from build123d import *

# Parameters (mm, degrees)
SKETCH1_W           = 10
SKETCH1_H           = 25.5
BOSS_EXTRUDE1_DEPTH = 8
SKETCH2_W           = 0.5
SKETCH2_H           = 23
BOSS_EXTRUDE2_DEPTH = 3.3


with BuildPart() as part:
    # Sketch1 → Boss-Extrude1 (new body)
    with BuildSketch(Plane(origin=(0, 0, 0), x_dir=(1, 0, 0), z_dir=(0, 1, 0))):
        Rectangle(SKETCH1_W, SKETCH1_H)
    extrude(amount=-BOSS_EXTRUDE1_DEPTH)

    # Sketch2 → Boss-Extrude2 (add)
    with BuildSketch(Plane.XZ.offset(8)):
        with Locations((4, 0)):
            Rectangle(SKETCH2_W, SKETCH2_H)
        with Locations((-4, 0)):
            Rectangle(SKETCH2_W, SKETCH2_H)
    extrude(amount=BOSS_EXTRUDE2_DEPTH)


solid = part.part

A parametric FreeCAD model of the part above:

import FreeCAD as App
import Part
import Sketcher

V = App.Vector


def add_polygon(sketch, points):
    """Adds a closed chain of lines whose ends are joined by coincident constraints."""
    first, n = sketch.GeometryCount, len(points)
    for a, b in zip(points, points[1:] + points[:1]):
        sketch.addGeometry(Part.LineSegment(App.Vector(*a, 0), App.Vector(*b, 0)), False)
    for i in range(n):
        sketch.addConstraint(Sketcher.Constraint("Coincident", first + i, 2, first + (i + 1) % n, 1))

doc = App.newDocument("Part")
body = doc.addObject("PartDesign::Body", "Body")

# Sketch on XZ plane
sketch1 = body.newObject("Sketcher::SketchObject", "Sketch")
sketch1.AttachmentSupport = (doc.getObject("XZ_Plane"), [""])
sketch1.MapMode = "FlatFace"
add_polygon(sketch1, [(-5, -13), (-5, 13), (5, 13), (5, -13)])  # lines 0-3
sketch1.addConstraint([
    Sketcher.Constraint("Vertical", 0),
    Sketcher.Constraint("Horizontal", 1),
    Sketcher.Constraint("Vertical", 2),
    Sketcher.Constraint("Horizontal", 3),
    Sketcher.Constraint("Symmetric", 0, 2, 2, 2, -1, 1),
    Sketcher.Constraint("DistanceX", 1, 1, 1, 2, 10.0),
    Sketcher.Constraint("DistanceY", 0, 1, 0, 2, 25.5),
])
pad1 = body.newObject("PartDesign::Pad", "Pad")
pad1.Profile = sketch1
pad1.Length = 8

# Sketch on XZ plane
sketch2 = body.newObject("Sketcher::SketchObject", "Sketch001")
sketch2.AttachmentSupport = (doc.getObject("XZ_Plane"), [""])
sketch2.MapMode = "FlatFace"
sketch2.AttachmentOffset = App.Placement(V(0, 0, 8), App.Rotation())
add_polygon(sketch2, [(3.8, 11.5), (3.8, -11.5), (4.2, -11.5), (4.2, 11.5)])  # lines 0-3
add_polygon(sketch2, [(-4.2, 11.5), (-4.2, -11.5), (-3.8, -11.5), (-3.8, 11.5)])  # lines 4-7
sketch2.addConstraint([
    Sketcher.Constraint("Vertical", 0),
    Sketcher.Constraint("Horizontal", 1),
    Sketcher.Constraint("Vertical", 2),
    Sketcher.Constraint("Horizontal", 3),
    Sketcher.Constraint("Vertical", 4),
    Sketcher.Constraint("Horizontal", 5),
    Sketcher.Constraint("Vertical", 6),
    Sketcher.Constraint("Horizontal", 7),
    Sketcher.Constraint("Symmetric", 2, 2, 4, 2, -1, 1),
    Sketcher.Constraint("Symmetric", 0, 2, 6, 2, -1, 1),
    Sketcher.Constraint("Horizontal", 1, 2, 4, 2),
    Sketcher.Constraint("DistanceY", 0, 2, 0, 1, 23.0),
    Sketcher.Constraint("DistanceX", 1, 1, 1, 2, 0.5),
    Sketcher.Constraint("DistanceX", 4, 2, 0, 2, 8.0),
])
pad2 = body.newObject("PartDesign::Pad", "Pad001")
pad2.Profile = sketch2
pad2.Length = 3.3

doc.recompute()
